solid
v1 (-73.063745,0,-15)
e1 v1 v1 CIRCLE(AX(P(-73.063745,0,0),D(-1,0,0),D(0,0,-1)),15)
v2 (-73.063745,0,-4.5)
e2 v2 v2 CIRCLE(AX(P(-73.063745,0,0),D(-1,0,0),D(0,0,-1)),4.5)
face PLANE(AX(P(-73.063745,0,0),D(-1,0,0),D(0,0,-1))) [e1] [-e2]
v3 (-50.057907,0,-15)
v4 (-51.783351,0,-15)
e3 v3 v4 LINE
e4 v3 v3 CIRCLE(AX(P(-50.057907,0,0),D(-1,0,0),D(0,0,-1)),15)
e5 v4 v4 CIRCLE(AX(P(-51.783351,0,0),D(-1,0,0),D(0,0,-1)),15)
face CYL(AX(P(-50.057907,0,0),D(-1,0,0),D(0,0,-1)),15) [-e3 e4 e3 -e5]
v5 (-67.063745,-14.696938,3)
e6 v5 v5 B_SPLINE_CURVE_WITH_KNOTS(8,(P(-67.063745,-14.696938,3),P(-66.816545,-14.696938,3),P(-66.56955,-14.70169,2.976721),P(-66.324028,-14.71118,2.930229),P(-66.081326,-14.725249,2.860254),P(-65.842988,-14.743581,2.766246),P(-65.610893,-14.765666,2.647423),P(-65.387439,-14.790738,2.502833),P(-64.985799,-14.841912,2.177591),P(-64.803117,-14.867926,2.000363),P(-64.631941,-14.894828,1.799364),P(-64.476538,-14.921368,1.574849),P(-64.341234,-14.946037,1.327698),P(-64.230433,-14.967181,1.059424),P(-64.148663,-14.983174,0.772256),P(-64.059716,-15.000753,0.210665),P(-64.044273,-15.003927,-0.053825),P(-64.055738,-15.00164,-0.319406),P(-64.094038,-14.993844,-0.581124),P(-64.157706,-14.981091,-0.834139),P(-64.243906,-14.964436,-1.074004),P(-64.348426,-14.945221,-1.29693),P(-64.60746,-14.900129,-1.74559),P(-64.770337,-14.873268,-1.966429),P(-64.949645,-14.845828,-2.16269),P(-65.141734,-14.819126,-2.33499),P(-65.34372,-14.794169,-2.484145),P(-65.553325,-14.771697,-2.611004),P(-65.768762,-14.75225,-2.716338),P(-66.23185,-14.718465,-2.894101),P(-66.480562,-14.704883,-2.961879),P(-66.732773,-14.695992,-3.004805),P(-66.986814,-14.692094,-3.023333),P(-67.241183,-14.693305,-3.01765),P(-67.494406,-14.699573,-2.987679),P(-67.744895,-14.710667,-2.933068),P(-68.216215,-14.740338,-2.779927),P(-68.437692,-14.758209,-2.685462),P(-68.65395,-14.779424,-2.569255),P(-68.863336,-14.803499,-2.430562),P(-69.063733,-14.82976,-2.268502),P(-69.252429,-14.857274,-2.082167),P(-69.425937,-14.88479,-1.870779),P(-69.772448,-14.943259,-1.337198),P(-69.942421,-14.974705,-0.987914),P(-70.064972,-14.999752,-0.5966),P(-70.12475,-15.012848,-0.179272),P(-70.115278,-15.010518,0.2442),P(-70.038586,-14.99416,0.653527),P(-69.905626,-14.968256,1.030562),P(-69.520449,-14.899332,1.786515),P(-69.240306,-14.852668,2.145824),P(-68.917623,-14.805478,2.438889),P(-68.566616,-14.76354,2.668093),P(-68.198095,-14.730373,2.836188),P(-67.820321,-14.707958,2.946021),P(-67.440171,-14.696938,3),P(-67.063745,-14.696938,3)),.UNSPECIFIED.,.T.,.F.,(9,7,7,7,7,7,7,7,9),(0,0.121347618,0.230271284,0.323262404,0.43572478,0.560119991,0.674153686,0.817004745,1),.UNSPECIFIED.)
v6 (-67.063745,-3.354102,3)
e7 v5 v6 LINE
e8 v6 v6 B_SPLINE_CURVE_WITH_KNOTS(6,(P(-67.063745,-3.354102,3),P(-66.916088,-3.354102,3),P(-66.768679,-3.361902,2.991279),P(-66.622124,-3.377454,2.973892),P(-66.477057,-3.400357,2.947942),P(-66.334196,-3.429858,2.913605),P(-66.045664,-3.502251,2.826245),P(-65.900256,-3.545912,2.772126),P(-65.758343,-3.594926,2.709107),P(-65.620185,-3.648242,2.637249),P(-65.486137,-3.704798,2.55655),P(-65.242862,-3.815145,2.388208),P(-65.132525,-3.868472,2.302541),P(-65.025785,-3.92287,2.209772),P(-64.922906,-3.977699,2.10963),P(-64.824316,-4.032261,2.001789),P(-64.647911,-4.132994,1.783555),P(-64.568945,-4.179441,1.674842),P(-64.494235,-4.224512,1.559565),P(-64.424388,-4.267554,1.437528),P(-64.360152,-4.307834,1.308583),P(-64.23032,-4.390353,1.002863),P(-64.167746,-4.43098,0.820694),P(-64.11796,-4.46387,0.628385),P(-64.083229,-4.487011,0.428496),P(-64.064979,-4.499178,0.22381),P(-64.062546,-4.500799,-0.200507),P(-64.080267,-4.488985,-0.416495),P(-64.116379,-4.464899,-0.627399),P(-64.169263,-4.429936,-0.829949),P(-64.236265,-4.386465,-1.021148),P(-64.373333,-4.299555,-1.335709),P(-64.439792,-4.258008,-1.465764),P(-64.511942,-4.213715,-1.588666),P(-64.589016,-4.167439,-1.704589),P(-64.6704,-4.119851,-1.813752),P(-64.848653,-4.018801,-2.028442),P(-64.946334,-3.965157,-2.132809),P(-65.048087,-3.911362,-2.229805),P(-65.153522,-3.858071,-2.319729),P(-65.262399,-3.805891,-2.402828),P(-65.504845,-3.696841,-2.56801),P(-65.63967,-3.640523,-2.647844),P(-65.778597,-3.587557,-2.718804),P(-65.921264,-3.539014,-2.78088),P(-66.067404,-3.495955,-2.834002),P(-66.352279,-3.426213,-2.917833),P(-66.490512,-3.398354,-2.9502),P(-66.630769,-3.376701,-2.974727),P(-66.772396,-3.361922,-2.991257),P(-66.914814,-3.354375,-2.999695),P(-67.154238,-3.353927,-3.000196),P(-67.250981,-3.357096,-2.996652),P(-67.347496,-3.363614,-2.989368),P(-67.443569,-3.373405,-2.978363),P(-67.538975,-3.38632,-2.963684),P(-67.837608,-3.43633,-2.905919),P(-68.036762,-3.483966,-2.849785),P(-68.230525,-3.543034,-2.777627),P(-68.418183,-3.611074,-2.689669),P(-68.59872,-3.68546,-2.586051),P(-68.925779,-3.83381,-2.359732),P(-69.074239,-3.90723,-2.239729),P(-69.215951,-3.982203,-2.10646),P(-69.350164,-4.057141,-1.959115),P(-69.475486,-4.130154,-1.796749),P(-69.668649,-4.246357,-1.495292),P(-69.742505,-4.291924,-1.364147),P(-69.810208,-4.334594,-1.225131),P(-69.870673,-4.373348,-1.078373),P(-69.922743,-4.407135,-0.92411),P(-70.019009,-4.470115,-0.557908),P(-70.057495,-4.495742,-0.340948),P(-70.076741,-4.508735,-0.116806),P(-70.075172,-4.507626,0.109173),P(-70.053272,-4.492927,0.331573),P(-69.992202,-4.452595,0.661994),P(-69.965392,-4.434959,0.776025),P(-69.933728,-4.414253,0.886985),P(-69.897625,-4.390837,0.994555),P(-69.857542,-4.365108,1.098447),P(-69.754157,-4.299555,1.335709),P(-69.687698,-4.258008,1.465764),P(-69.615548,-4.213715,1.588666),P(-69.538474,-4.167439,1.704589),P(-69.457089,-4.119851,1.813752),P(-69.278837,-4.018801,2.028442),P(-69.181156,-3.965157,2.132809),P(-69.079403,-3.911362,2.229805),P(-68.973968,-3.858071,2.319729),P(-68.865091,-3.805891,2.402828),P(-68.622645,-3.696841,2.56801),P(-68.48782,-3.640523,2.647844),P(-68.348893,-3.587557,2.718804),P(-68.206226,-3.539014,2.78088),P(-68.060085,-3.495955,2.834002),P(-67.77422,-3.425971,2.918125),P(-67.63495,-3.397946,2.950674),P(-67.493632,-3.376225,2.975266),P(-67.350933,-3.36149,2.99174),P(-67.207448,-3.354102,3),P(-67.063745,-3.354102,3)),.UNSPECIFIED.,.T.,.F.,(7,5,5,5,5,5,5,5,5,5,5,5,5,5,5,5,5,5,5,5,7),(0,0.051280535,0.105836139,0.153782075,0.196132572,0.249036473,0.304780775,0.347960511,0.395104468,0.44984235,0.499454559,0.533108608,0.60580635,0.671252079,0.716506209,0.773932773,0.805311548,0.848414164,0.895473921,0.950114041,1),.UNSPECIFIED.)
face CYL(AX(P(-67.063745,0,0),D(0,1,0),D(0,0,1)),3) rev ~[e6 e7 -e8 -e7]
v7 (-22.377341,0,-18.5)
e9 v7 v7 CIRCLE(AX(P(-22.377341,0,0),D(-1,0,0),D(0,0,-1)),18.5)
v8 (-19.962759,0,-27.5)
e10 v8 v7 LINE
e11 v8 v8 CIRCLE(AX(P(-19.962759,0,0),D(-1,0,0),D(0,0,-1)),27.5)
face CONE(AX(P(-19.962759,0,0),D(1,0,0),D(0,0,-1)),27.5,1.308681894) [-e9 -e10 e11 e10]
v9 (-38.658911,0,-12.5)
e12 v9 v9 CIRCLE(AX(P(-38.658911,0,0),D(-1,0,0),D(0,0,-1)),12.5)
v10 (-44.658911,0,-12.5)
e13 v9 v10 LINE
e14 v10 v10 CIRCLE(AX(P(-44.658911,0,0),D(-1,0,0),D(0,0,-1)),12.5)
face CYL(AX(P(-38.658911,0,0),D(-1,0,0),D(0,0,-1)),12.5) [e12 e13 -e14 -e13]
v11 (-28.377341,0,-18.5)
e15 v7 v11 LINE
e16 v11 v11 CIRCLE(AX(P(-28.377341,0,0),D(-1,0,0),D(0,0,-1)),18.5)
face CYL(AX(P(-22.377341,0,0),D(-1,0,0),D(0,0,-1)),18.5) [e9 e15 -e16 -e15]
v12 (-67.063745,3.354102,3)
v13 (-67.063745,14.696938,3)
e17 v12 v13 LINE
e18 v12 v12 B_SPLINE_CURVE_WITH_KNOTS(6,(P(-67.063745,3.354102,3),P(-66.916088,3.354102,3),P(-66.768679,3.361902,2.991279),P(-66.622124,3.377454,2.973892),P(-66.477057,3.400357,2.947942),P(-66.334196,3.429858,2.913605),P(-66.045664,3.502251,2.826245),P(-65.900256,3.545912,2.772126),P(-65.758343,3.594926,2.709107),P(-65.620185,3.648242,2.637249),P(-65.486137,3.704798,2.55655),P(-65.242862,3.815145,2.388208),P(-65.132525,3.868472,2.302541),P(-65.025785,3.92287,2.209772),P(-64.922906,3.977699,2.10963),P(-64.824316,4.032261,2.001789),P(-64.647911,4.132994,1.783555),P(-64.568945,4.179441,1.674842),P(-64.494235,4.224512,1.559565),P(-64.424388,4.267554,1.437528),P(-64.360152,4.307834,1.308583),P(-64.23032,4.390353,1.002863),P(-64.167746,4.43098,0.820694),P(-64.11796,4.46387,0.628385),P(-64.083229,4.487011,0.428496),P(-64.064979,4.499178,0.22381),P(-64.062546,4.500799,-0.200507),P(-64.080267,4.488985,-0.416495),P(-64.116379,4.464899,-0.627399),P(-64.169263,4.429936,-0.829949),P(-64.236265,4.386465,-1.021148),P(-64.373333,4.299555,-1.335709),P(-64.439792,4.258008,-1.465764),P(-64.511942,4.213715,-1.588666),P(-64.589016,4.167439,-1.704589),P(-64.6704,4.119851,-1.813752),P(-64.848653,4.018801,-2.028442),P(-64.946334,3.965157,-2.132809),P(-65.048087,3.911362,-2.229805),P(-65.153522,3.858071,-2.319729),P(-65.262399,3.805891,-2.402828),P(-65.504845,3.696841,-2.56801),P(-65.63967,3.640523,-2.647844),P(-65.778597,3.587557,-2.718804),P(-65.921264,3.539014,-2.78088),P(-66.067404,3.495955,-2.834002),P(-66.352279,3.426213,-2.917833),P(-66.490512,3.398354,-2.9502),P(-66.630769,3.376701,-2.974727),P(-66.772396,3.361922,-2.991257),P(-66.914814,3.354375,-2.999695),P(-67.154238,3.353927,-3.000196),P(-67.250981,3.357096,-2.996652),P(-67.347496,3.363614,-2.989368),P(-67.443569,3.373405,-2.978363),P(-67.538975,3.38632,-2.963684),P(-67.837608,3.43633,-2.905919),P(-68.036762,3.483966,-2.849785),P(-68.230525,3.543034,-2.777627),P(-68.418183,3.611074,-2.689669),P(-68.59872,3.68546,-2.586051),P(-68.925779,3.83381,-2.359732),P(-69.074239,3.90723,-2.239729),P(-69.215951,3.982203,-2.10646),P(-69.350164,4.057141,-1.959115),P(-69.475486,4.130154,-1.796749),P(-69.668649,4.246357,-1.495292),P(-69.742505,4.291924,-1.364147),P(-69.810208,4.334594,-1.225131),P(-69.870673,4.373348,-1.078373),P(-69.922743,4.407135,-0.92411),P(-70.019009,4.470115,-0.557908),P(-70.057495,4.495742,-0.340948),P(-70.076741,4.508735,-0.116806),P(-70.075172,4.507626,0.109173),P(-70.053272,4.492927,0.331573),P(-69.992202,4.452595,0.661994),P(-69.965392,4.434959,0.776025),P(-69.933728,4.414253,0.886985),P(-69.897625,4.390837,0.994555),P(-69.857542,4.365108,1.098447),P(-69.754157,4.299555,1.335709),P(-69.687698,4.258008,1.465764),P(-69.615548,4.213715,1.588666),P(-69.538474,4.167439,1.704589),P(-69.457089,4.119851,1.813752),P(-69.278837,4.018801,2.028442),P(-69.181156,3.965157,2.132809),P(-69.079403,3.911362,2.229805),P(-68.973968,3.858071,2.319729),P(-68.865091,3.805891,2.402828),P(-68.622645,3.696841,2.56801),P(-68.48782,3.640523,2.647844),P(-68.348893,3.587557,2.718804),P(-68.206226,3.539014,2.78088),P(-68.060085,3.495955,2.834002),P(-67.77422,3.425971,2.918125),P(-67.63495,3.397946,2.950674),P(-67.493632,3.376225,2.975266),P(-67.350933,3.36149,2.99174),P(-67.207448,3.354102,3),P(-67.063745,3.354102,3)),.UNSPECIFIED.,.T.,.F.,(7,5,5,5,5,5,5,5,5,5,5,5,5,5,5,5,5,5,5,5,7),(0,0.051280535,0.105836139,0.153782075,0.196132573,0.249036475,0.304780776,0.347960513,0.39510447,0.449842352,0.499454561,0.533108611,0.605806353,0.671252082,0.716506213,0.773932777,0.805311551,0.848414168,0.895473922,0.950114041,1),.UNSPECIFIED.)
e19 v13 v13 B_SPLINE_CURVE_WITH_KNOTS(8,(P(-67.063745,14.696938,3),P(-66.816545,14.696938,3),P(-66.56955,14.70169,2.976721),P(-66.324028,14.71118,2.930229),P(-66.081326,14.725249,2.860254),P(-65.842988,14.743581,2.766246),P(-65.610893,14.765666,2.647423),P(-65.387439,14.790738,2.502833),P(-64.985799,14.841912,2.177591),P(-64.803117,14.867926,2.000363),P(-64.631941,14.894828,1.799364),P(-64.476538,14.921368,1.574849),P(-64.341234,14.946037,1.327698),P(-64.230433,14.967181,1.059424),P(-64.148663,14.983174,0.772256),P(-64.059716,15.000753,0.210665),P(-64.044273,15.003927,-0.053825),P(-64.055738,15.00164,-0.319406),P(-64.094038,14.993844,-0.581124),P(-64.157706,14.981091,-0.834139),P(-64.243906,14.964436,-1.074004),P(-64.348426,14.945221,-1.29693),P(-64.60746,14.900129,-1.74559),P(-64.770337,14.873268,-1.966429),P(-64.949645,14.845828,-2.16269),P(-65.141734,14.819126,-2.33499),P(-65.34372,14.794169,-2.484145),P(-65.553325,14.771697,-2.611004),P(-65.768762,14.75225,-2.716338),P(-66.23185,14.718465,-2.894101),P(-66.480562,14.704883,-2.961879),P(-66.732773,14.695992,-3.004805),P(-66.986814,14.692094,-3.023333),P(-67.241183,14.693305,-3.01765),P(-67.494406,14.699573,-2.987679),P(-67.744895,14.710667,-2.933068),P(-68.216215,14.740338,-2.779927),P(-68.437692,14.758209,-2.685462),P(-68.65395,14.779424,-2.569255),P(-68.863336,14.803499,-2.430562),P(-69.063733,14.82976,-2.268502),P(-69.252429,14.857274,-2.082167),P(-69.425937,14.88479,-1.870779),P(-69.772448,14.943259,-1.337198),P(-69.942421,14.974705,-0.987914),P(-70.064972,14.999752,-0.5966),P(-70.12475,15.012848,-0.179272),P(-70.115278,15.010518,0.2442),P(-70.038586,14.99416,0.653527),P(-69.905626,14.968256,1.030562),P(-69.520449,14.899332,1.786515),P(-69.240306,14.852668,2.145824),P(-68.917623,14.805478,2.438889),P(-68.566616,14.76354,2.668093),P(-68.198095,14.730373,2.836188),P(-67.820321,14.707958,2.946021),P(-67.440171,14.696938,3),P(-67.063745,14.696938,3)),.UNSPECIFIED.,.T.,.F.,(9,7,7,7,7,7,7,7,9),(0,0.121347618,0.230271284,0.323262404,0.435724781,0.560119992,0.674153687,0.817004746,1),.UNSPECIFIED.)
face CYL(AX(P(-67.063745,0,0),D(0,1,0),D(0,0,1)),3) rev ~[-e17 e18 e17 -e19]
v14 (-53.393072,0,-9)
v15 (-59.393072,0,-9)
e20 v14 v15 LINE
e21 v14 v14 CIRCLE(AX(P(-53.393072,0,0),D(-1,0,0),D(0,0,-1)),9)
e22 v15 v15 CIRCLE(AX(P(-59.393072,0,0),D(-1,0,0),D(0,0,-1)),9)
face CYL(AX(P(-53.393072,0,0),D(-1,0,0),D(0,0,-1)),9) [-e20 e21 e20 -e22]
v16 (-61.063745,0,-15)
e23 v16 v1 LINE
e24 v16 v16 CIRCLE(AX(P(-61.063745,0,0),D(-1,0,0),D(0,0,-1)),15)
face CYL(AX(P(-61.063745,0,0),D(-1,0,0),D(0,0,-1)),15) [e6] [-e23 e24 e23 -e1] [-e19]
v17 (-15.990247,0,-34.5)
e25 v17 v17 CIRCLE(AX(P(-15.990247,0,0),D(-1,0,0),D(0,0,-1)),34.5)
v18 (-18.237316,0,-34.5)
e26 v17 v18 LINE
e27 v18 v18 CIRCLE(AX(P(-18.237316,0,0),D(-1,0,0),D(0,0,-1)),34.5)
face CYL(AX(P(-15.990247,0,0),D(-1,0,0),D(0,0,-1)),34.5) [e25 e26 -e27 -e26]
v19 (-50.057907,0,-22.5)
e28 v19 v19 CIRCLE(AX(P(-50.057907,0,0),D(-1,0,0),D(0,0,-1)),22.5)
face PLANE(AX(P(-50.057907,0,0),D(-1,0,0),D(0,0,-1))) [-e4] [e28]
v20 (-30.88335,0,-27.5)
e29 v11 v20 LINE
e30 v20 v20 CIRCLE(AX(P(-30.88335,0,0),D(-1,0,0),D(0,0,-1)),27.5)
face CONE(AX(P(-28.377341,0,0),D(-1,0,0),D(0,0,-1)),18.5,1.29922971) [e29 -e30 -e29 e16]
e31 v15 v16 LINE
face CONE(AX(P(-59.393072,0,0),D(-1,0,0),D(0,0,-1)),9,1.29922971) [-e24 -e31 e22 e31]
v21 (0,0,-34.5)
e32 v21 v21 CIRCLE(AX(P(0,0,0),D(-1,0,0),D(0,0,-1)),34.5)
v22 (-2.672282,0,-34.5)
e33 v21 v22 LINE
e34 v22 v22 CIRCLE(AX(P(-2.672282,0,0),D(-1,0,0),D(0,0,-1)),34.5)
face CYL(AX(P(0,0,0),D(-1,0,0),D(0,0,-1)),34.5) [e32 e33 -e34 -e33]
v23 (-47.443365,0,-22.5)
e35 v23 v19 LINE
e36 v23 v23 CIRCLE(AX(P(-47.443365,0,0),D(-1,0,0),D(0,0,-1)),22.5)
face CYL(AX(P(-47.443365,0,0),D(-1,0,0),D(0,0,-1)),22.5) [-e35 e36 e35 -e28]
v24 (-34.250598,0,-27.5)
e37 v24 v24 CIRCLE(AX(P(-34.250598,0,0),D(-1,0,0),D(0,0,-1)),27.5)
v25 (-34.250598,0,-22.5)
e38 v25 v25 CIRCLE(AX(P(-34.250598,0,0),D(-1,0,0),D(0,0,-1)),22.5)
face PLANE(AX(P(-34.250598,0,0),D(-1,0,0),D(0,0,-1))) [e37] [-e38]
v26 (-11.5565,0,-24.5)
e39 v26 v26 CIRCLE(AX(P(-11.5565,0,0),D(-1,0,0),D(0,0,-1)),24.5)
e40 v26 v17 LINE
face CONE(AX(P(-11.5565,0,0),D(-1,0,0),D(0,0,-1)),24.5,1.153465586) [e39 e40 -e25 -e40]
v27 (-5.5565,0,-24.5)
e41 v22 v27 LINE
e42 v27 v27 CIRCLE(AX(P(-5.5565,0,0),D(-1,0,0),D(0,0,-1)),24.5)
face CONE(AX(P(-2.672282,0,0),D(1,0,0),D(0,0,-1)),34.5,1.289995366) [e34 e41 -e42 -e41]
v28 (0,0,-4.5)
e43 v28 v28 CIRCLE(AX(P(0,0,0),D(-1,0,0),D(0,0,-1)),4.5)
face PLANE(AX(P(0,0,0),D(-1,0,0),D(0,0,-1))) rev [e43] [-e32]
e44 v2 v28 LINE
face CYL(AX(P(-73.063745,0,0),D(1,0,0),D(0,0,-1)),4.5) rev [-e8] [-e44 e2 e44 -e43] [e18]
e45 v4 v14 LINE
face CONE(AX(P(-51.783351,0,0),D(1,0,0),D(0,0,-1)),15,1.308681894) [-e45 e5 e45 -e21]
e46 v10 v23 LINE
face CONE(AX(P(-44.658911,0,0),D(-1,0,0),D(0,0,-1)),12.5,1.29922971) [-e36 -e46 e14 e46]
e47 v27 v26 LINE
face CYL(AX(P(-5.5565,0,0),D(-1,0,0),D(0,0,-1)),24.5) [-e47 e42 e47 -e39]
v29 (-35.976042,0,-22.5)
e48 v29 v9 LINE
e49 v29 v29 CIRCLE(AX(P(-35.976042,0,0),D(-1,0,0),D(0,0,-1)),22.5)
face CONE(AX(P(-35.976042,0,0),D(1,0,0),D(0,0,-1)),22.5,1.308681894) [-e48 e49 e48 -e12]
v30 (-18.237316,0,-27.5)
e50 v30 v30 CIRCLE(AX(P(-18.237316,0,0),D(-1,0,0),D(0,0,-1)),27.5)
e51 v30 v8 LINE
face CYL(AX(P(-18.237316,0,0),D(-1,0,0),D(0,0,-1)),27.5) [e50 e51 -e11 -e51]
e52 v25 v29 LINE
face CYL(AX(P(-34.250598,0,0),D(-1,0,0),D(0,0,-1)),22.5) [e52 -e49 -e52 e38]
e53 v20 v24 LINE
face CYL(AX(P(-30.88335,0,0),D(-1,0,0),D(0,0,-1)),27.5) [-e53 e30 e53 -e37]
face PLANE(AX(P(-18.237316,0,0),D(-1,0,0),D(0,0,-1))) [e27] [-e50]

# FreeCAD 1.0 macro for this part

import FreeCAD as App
import Part
import Sketcher

V = App.Vector
Q = App.Units.Quantity


def add_polygon(sketch, points):
    """Adds a closed chain of lines whose ends are joined by coincident constraints."""
    first, n = sketch.GeometryCount, len(points)
    for a, b in zip(points, points[1:] + points[:1]):
        sketch.addGeometry(Part.LineSegment(App.Vector(*a, 0), App.Vector(*b, 0)), False)
    for i in range(n):
        sketch.addConstraint(Sketcher.Constraint("Coincident", first + i, 2, first + (i + 1) % n, 1))

doc = App.newDocument("Part")
body = doc.addObject("PartDesign::Body", "Body")

# Sketch on XY plane
sketch1 = body.newObject("Sketcher::SketchObject", "Sketch")
sketch1.AttachmentSupport = (doc.getObject("XY_Plane"), [""])
sketch1.MapMode = "FlatFace"
add_polygon(sketch1, [(-73.1, 4.5), (0, 4.5), (0, 34.5), (-2.7, 34.5), (-5.6, 24.5), (-11.6, 24.5), (-16, 34.5), (-18.2, 34.5), (-18.2, 27.5), (-20, 27.5), (-22.4, 18.5), (-28.4, 18.5), (-30.9, 27.5), (-34.3, 27.5), (-34.3, 22.5), (-36, 22.5), (-38.7, 12.5), (-44.7, 12.5), (-47.4, 22.5), (-50.1, 22.5), (-50.1, 15), (-51.8, 15), (-53.4, 9), (-59.4, 9), (-61.1, 15), (-73.1, 15)])  # lines 0-25
sketch1.addConstraint([
    Sketcher.Constraint("Horizontal", 0),
    Sketcher.Constraint("Vertical", 1),
    Sketcher.Constraint("Horizontal", 2),
    Sketcher.Constraint("Horizontal", 4),
    Sketcher.Constraint("Horizontal", 6),
    Sketcher.Constraint("Vertical", 7),
    Sketcher.Constraint("Horizontal", 8),
    Sketcher.Constraint("Horizontal", 10),
    Sketcher.Constraint("Horizontal", 12),
    Sketcher.Constraint("Vertical", 13),
    Sketcher.Constraint("Horizontal", 14),
    Sketcher.Constraint("Horizontal", 16),
    Sketcher.Constraint("Horizontal", 18),
    Sketcher.Constraint("Vertical", 19),
    Sketcher.Constraint("Horizontal", 20),
    Sketcher.Constraint("Horizontal", 22),
    Sketcher.Constraint("Horizontal", 24),
    Sketcher.Constraint("Vertical", 25),
    Sketcher.Constraint("PointOnObject", 0, 2, -2),
    Sketcher.Constraint("Parallel", 9, 15),
    Sketcher.Constraint("Parallel", 11, 17),
    Sketcher.Constraint("Parallel", 15, 21),
    Sketcher.Constraint("Parallel", 17, 23),
    Sketcher.Constraint("Horizontal", 2, 2, 5, 2),
    Sketcher.Constraint("Horizontal", 8, 2, 11, 2),
    Sketcher.Constraint("Horizontal", 14, 2, 17, 2),
    Sketcher.Constraint("Horizontal", 20, 2, 23, 2),
    Sketcher.Constraint("Equal", 4, 10),
    Sketcher.Constraint("Equal", 8, 14),
    Sketcher.Constraint("Equal", 10, 16),
    Sketcher.Constraint("Equal", 14, 20),
    Sketcher.Constraint("Equal", 16, 22),
    Sketcher.Constraint("DistanceX", 4, 2, 4, 1, Q("6 mm")),
    Sketcher.Constraint("DistanceX", 24, 2, 24, 1, Q("12 mm")),
    Sketcher.Constraint("DistanceY", 1, 1, 1, 2, Q("30 mm")),
    Sketcher.Constraint("DistanceY", 7, 2, 7, 1, Q("7 mm")),
    Sketcher.Constraint("DistanceY", 13, 2, 13, 1, Q("5 mm")),
    Sketcher.Constraint("DistanceY", 19, 2, 19, 1, Q("7.5 mm")),
    Sketcher.Constraint("DistanceY", -1, 1, 19, 2, Q("15 mm")),
    Sketcher.Constraint("DistanceY", -1, 1, 21, 2, Q("9 mm")),
    Sketcher.Constraint("DistanceY", 3, 2, 2, 2, Q("10 mm")),
    Sketcher.Constraint("DistanceY", 9, 2, 8, 2, Q("9 mm")),
    Sketcher.Constraint("DistanceY", 15, 2, 14, 2, Q("10 mm")),
    Sketcher.Constraint("DistanceX", 6, 2, 6, 1, Q("2.247068 mm")),
    Sketcher.Constraint("DistanceX", 18, 2, 18, 1, Q("2.614542 mm")),
    Sketcher.Constraint("DistanceX", 3, 2, -1, 1, Q("5.5565 mm")),
    Sketcher.Constraint("DistanceX", 12, 2, -1, 1, Q("34.250598 mm")),
    Sketcher.Constraint("DistanceX", 14, 2, 10, 2, Q("7.598701 mm")),
    Sketcher.Constraint("Distance", 11, Q("9.342381 mm")),
    Sketcher.Constraint("Distance", 21, Q("6.212182 mm")),
    Sketcher.Constraint("DistanceX", 0, 1, 0, 2, Q("73.063745 mm")),
    Sketcher.Constraint("DistanceX", 2, 2, 2, 1, Q("2.672282 mm")),
])
revolution = body.newObject("PartDesign::Revolution", "Revolution")
revolution.Profile = sketch1
revolution.ReferenceAxis = (sketch1, ["H_Axis"])
revolution.Angle = 360

# Sketch on XZ plane
sketch2 = body.newObject("Sketcher::SketchObject", "Sketch001")
sketch2.AttachmentSupport = (doc.getObject("XZ_Plane"), [""])
sketch2.MapMode = "FlatFace"
sketch2.addGeometry(Part.Circle(V(-67.1, 0, 0), V(0, 0, 1), 3), False)
sketch2.addConstraint([
    Sketcher.Constraint("PointOnObject", 0, 3, -1),
    Sketcher.Constraint("Diameter", 0, Q("6 mm")),
    Sketcher.Constraint("DistanceX", 0, 3, -1, 1, Q("67.063745 mm")),
])
pocket1 = body.newObject("PartDesign::Pocket", "Pocket")
pocket1.Profile = sketch2
pocket1.Length = 47
pocket1.Midplane = True

doc.recompute()
